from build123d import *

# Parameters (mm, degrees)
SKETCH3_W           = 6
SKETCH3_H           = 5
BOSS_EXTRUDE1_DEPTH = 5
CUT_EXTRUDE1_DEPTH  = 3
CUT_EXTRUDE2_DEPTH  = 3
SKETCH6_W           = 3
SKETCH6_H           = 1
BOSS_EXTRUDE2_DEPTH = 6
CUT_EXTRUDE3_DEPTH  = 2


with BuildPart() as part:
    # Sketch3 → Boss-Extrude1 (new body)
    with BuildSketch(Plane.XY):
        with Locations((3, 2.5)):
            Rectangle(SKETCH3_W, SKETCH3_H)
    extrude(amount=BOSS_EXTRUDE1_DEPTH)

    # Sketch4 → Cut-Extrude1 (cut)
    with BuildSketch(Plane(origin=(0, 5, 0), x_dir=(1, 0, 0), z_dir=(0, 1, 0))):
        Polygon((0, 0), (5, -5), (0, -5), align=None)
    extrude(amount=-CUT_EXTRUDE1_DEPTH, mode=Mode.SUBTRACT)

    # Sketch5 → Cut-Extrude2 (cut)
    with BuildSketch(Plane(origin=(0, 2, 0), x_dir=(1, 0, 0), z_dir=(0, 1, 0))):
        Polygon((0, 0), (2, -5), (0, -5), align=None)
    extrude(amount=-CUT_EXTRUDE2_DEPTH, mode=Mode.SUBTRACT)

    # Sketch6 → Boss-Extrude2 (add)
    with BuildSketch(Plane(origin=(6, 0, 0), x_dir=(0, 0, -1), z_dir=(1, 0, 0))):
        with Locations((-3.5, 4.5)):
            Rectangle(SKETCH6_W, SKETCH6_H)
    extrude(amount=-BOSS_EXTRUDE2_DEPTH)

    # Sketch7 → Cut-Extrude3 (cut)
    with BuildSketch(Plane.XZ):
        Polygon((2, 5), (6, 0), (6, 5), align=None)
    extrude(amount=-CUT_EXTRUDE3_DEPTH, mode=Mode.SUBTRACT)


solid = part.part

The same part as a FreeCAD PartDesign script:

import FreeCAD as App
import Part
import Sketcher
from FreeCAD import Vector
Q = App.Units.Quantity


def add_polygon(sketch, points):
    """Adds a closed chain of lines whose ends are joined by coincident constraints."""
    first, n = sketch.GeometryCount, len(points)
    for a, b in zip(points, points[1:] + points[:1]):
        sketch.addGeometry(Part.LineSegment(App.Vector(*a, 0), App.Vector(*b, 0)), False)
    for i in range(n):
        sketch.addConstraint(Sketcher.Constraint("Coincident", first + i, 2, first + (i + 1) % n, 1))

doc = App.newDocument("Part")
params = doc.addObject("Spreadsheet::Sheet", "Params")
for row, (alias, value) in enumerate([
    ("sketch1_width", "6 mm"),
    ("sketch1_height", "5 mm"),
    ("pad1_length", "5 mm"),
    ("sketch2_width", "5 mm"),
    ("pocket1_length", "3 mm"),
    ("sketch3_width", "2 mm"),
    ("sketch3_height", "5 mm"),
    ("pocket2_length", "3 mm"),
    ("sketch4_width", "1 mm"),
    ("sketch4_height", "3 mm"),
    ("pad2_length", "6 mm"),
    ("sketch5_width", "4 mm"),
    ("sketch5_height", "5 mm"),
    ("pocket3_length", "2 mm"),
], start=1):
    params.set(f"A{row}", alias)
    params.set(f"B{row}", "=" + value)
    params.setAlias(f"B{row}", alias)

body = doc.addObject("PartDesign::Body", "Body")

# Sketch on XY plane
sketch1 = body.newObject("Sketcher::SketchObject", "Sketch")
sketch1.AttachmentSupport = (doc.getObject("XY_Plane"), [""])
sketch1.MapMode = "FlatFace"
add_polygon(sketch1, [(0, 5), (0, 0), (6, 0), (6, 5)])  # lines 0-3
sketch1.addConstraint(Sketcher.Constraint("Vertical", 0))
sketch1.addConstraint(Sketcher.Constraint("Horizontal", 1))
sketch1.addConstraint(Sketcher.Constraint("Vertical", 2))
sketch1.addConstraint(Sketcher.Constraint("Horizontal", 3))
sketch1.addConstraint(Sketcher.Constraint("Coincident", 0, 2, -1, 1))
sketch1.addConstraint(Sketcher.Constraint("DistanceX", 1, 1, 1, 2, Q("6 mm")))
sketch1.addConstraint(Sketcher.Constraint("DistanceY", 0, 2, 0, 1, Q("5 mm")))
sketch1.setExpression("Constraints[9]", "Params.sketch1_width")
sketch1.setExpression("Constraints[10]", "Params.sketch1_height")
pad1 = body.newObject("PartDesign::Pad", "Pad")
pad1.Profile = sketch1
pad1.setExpression("Length", "Params.pad1_length")

# Sketch on XZ plane
sketch2 = body.newObject("Sketcher::SketchObject", "Sketch001")
sketch2.AttachmentSupport = (doc.getObject("XZ_Plane"), [""])
sketch2.MapMode = "FlatFace"
sketch2.AttachmentOffset = App.Placement(Vector(0, 0, -5), App.Rotation())
add_polygon(sketch2, [(5, 5), (0, 0), (0, 5)])  # lines 0-2
sketch2.addConstraint(Sketcher.Constraint("Vertical", 1))
sketch2.addConstraint(Sketcher.Constraint("Horizontal", 2))
sketch2.addConstraint(Sketcher.Constraint("Coincident", 0, 2, -1, 1))
sketch2.addConstraint(Sketcher.Constraint("Equal", 2, 1))
sketch2.addConstraint(Sketcher.Constraint("DistanceX", 2, 1, 2, 2, Q("5 mm")))
sketch2.setExpression("Constraints[7]", "Params.sketch2_width")
pocket1 = body.newObject("PartDesign::Pocket", "Pocket")
pocket1.Profile = sketch2
pocket1.setExpression("Length", "Params.pocket1_length")
pocket1.Reversed = True

# Sketch on XZ plane
sketch3 = body.newObject("Sketcher::SketchObject", "Sketch002")
sketch3.AttachmentSupport = (doc.getObject("XZ_Plane"), [""])
sketch3.MapMode = "FlatFace"
sketch3.AttachmentOffset = App.Placement(Vector(0, 0, -2), App.Rotation())
add_polygon(sketch3, [(2, 5), (0, 0), (0, 5)])  # lines 0-2
sketch3.addConstraint(Sketcher.Constraint("Vertical", 1))
sketch3.addConstraint(Sketcher.Constraint("Horizontal", 2))
sketch3.addConstraint(Sketcher.Constraint("Coincident", 0, 2, -1, 1))
sketch3.addConstraint(Sketcher.Constraint("DistanceX", 2, 1, 2, 2, Q("2 mm")))
sketch3.addConstraint(Sketcher.Constraint("DistanceY", 1, 1, 1, 2, Q("5 mm")))
sketch3.setExpression("Constraints[6]", "Params.sketch3_width")
sketch3.setExpression("Constraints[7]", "Params.sketch3_height")
pocket2 = body.newObject("PartDesign::Pocket", "Pocket001")
pocket2.Profile = sketch3
pocket2.setExpression("Length", "Params.pocket2_length")
pocket2.Reversed = True

# Sketch on YZ plane
sketch4 = body.newObject("Sketcher::SketchObject", "Sketch003")
sketch4.AttachmentSupport = (doc.getObject("YZ_Plane"), [""])
sketch4.MapMode = "FlatFace"
sketch4.AttachmentOffset = App.Placement(Vector(0, 0, 6), App.Rotation())
add_polygon(sketch4, [(5, 5), (4, 5), (4, 2), (5, 2)])  # lines 0-3
sketch4.addConstraint(Sketcher.Constraint("Horizontal", 0))
sketch4.addConstraint(Sketcher.Constraint("Vertical", 1))
sketch4.addConstraint(Sketcher.Constraint("Horizontal", 2))
sketch4.addConstraint(Sketcher.Constraint("Vertical", 3))
sketch4.addConstraint(Sketcher.Constraint("DistanceX", 0, 2, 0, 1, Q("1 mm")))
sketch4.addConstraint(Sketcher.Constraint("DistanceY", 1, 2, 1, 1, Q("3 mm")))
sketch4.addConstraint(Sketcher.Constraint("DistanceX", -1, 1, 0, 2, Q("4 mm")))
sketch4.addConstraint(Sketcher.Constraint("DistanceY", -1, 1, 0, 2, Q("5 mm")))
sketch4.setExpression("Constraints[8]", "Params.sketch4_width")
sketch4.setExpression("Constraints[9]", "Params.sketch4_height")
pad2 = body.newObject("PartDesign::Pad", "Pad001")
pad2.Profile = sketch4
pad2.setExpression("Length", "Params.pad2_length")
pad2.Reversed = True

# Sketch on XZ plane
sketch5 = body.newObject("Sketcher::SketchObject", "Sketch004")
sketch5.AttachmentSupport = (doc.getObject("XZ_Plane"), [""])
sketch5.MapMode = "FlatFace"
add_polygon(sketch5, [(2, 5), (6, 0), (6, 5)])  # lines 0-2
sketch5.addConstraint(Sketcher.Constraint("Vertical", 1))
sketch5.addConstraint(Sketcher.Constraint("Horizontal", 2))
sketch5.addConstraint(Sketcher.Constraint("PointOnObject", 0, 2, -1))
sketch5.addConstraint(Sketcher.Constraint("DistanceX", 2, 2, 2, 1, Q("4 mm")))
sketch5.addConstraint(Sketcher.Constraint("DistanceY", 1, 1, 1, 2, Q("5 mm")))
sketch5.addConstraint(Sketcher.Constraint("DistanceX", -1, 1, 0, 2, Q("6 mm")))
sketch5.setExpression("Constraints[6]", "Params.sketch5_width")
sketch5.setExpression("Constraints[7]", "Params.sketch5_height")
pocket3 = body.newObject("PartDesign::Pocket", "Pocket002")
pocket3.Profile = sketch5
pocket3.setExpression("Length", "Params.pocket3_length")

doc.recompute()
